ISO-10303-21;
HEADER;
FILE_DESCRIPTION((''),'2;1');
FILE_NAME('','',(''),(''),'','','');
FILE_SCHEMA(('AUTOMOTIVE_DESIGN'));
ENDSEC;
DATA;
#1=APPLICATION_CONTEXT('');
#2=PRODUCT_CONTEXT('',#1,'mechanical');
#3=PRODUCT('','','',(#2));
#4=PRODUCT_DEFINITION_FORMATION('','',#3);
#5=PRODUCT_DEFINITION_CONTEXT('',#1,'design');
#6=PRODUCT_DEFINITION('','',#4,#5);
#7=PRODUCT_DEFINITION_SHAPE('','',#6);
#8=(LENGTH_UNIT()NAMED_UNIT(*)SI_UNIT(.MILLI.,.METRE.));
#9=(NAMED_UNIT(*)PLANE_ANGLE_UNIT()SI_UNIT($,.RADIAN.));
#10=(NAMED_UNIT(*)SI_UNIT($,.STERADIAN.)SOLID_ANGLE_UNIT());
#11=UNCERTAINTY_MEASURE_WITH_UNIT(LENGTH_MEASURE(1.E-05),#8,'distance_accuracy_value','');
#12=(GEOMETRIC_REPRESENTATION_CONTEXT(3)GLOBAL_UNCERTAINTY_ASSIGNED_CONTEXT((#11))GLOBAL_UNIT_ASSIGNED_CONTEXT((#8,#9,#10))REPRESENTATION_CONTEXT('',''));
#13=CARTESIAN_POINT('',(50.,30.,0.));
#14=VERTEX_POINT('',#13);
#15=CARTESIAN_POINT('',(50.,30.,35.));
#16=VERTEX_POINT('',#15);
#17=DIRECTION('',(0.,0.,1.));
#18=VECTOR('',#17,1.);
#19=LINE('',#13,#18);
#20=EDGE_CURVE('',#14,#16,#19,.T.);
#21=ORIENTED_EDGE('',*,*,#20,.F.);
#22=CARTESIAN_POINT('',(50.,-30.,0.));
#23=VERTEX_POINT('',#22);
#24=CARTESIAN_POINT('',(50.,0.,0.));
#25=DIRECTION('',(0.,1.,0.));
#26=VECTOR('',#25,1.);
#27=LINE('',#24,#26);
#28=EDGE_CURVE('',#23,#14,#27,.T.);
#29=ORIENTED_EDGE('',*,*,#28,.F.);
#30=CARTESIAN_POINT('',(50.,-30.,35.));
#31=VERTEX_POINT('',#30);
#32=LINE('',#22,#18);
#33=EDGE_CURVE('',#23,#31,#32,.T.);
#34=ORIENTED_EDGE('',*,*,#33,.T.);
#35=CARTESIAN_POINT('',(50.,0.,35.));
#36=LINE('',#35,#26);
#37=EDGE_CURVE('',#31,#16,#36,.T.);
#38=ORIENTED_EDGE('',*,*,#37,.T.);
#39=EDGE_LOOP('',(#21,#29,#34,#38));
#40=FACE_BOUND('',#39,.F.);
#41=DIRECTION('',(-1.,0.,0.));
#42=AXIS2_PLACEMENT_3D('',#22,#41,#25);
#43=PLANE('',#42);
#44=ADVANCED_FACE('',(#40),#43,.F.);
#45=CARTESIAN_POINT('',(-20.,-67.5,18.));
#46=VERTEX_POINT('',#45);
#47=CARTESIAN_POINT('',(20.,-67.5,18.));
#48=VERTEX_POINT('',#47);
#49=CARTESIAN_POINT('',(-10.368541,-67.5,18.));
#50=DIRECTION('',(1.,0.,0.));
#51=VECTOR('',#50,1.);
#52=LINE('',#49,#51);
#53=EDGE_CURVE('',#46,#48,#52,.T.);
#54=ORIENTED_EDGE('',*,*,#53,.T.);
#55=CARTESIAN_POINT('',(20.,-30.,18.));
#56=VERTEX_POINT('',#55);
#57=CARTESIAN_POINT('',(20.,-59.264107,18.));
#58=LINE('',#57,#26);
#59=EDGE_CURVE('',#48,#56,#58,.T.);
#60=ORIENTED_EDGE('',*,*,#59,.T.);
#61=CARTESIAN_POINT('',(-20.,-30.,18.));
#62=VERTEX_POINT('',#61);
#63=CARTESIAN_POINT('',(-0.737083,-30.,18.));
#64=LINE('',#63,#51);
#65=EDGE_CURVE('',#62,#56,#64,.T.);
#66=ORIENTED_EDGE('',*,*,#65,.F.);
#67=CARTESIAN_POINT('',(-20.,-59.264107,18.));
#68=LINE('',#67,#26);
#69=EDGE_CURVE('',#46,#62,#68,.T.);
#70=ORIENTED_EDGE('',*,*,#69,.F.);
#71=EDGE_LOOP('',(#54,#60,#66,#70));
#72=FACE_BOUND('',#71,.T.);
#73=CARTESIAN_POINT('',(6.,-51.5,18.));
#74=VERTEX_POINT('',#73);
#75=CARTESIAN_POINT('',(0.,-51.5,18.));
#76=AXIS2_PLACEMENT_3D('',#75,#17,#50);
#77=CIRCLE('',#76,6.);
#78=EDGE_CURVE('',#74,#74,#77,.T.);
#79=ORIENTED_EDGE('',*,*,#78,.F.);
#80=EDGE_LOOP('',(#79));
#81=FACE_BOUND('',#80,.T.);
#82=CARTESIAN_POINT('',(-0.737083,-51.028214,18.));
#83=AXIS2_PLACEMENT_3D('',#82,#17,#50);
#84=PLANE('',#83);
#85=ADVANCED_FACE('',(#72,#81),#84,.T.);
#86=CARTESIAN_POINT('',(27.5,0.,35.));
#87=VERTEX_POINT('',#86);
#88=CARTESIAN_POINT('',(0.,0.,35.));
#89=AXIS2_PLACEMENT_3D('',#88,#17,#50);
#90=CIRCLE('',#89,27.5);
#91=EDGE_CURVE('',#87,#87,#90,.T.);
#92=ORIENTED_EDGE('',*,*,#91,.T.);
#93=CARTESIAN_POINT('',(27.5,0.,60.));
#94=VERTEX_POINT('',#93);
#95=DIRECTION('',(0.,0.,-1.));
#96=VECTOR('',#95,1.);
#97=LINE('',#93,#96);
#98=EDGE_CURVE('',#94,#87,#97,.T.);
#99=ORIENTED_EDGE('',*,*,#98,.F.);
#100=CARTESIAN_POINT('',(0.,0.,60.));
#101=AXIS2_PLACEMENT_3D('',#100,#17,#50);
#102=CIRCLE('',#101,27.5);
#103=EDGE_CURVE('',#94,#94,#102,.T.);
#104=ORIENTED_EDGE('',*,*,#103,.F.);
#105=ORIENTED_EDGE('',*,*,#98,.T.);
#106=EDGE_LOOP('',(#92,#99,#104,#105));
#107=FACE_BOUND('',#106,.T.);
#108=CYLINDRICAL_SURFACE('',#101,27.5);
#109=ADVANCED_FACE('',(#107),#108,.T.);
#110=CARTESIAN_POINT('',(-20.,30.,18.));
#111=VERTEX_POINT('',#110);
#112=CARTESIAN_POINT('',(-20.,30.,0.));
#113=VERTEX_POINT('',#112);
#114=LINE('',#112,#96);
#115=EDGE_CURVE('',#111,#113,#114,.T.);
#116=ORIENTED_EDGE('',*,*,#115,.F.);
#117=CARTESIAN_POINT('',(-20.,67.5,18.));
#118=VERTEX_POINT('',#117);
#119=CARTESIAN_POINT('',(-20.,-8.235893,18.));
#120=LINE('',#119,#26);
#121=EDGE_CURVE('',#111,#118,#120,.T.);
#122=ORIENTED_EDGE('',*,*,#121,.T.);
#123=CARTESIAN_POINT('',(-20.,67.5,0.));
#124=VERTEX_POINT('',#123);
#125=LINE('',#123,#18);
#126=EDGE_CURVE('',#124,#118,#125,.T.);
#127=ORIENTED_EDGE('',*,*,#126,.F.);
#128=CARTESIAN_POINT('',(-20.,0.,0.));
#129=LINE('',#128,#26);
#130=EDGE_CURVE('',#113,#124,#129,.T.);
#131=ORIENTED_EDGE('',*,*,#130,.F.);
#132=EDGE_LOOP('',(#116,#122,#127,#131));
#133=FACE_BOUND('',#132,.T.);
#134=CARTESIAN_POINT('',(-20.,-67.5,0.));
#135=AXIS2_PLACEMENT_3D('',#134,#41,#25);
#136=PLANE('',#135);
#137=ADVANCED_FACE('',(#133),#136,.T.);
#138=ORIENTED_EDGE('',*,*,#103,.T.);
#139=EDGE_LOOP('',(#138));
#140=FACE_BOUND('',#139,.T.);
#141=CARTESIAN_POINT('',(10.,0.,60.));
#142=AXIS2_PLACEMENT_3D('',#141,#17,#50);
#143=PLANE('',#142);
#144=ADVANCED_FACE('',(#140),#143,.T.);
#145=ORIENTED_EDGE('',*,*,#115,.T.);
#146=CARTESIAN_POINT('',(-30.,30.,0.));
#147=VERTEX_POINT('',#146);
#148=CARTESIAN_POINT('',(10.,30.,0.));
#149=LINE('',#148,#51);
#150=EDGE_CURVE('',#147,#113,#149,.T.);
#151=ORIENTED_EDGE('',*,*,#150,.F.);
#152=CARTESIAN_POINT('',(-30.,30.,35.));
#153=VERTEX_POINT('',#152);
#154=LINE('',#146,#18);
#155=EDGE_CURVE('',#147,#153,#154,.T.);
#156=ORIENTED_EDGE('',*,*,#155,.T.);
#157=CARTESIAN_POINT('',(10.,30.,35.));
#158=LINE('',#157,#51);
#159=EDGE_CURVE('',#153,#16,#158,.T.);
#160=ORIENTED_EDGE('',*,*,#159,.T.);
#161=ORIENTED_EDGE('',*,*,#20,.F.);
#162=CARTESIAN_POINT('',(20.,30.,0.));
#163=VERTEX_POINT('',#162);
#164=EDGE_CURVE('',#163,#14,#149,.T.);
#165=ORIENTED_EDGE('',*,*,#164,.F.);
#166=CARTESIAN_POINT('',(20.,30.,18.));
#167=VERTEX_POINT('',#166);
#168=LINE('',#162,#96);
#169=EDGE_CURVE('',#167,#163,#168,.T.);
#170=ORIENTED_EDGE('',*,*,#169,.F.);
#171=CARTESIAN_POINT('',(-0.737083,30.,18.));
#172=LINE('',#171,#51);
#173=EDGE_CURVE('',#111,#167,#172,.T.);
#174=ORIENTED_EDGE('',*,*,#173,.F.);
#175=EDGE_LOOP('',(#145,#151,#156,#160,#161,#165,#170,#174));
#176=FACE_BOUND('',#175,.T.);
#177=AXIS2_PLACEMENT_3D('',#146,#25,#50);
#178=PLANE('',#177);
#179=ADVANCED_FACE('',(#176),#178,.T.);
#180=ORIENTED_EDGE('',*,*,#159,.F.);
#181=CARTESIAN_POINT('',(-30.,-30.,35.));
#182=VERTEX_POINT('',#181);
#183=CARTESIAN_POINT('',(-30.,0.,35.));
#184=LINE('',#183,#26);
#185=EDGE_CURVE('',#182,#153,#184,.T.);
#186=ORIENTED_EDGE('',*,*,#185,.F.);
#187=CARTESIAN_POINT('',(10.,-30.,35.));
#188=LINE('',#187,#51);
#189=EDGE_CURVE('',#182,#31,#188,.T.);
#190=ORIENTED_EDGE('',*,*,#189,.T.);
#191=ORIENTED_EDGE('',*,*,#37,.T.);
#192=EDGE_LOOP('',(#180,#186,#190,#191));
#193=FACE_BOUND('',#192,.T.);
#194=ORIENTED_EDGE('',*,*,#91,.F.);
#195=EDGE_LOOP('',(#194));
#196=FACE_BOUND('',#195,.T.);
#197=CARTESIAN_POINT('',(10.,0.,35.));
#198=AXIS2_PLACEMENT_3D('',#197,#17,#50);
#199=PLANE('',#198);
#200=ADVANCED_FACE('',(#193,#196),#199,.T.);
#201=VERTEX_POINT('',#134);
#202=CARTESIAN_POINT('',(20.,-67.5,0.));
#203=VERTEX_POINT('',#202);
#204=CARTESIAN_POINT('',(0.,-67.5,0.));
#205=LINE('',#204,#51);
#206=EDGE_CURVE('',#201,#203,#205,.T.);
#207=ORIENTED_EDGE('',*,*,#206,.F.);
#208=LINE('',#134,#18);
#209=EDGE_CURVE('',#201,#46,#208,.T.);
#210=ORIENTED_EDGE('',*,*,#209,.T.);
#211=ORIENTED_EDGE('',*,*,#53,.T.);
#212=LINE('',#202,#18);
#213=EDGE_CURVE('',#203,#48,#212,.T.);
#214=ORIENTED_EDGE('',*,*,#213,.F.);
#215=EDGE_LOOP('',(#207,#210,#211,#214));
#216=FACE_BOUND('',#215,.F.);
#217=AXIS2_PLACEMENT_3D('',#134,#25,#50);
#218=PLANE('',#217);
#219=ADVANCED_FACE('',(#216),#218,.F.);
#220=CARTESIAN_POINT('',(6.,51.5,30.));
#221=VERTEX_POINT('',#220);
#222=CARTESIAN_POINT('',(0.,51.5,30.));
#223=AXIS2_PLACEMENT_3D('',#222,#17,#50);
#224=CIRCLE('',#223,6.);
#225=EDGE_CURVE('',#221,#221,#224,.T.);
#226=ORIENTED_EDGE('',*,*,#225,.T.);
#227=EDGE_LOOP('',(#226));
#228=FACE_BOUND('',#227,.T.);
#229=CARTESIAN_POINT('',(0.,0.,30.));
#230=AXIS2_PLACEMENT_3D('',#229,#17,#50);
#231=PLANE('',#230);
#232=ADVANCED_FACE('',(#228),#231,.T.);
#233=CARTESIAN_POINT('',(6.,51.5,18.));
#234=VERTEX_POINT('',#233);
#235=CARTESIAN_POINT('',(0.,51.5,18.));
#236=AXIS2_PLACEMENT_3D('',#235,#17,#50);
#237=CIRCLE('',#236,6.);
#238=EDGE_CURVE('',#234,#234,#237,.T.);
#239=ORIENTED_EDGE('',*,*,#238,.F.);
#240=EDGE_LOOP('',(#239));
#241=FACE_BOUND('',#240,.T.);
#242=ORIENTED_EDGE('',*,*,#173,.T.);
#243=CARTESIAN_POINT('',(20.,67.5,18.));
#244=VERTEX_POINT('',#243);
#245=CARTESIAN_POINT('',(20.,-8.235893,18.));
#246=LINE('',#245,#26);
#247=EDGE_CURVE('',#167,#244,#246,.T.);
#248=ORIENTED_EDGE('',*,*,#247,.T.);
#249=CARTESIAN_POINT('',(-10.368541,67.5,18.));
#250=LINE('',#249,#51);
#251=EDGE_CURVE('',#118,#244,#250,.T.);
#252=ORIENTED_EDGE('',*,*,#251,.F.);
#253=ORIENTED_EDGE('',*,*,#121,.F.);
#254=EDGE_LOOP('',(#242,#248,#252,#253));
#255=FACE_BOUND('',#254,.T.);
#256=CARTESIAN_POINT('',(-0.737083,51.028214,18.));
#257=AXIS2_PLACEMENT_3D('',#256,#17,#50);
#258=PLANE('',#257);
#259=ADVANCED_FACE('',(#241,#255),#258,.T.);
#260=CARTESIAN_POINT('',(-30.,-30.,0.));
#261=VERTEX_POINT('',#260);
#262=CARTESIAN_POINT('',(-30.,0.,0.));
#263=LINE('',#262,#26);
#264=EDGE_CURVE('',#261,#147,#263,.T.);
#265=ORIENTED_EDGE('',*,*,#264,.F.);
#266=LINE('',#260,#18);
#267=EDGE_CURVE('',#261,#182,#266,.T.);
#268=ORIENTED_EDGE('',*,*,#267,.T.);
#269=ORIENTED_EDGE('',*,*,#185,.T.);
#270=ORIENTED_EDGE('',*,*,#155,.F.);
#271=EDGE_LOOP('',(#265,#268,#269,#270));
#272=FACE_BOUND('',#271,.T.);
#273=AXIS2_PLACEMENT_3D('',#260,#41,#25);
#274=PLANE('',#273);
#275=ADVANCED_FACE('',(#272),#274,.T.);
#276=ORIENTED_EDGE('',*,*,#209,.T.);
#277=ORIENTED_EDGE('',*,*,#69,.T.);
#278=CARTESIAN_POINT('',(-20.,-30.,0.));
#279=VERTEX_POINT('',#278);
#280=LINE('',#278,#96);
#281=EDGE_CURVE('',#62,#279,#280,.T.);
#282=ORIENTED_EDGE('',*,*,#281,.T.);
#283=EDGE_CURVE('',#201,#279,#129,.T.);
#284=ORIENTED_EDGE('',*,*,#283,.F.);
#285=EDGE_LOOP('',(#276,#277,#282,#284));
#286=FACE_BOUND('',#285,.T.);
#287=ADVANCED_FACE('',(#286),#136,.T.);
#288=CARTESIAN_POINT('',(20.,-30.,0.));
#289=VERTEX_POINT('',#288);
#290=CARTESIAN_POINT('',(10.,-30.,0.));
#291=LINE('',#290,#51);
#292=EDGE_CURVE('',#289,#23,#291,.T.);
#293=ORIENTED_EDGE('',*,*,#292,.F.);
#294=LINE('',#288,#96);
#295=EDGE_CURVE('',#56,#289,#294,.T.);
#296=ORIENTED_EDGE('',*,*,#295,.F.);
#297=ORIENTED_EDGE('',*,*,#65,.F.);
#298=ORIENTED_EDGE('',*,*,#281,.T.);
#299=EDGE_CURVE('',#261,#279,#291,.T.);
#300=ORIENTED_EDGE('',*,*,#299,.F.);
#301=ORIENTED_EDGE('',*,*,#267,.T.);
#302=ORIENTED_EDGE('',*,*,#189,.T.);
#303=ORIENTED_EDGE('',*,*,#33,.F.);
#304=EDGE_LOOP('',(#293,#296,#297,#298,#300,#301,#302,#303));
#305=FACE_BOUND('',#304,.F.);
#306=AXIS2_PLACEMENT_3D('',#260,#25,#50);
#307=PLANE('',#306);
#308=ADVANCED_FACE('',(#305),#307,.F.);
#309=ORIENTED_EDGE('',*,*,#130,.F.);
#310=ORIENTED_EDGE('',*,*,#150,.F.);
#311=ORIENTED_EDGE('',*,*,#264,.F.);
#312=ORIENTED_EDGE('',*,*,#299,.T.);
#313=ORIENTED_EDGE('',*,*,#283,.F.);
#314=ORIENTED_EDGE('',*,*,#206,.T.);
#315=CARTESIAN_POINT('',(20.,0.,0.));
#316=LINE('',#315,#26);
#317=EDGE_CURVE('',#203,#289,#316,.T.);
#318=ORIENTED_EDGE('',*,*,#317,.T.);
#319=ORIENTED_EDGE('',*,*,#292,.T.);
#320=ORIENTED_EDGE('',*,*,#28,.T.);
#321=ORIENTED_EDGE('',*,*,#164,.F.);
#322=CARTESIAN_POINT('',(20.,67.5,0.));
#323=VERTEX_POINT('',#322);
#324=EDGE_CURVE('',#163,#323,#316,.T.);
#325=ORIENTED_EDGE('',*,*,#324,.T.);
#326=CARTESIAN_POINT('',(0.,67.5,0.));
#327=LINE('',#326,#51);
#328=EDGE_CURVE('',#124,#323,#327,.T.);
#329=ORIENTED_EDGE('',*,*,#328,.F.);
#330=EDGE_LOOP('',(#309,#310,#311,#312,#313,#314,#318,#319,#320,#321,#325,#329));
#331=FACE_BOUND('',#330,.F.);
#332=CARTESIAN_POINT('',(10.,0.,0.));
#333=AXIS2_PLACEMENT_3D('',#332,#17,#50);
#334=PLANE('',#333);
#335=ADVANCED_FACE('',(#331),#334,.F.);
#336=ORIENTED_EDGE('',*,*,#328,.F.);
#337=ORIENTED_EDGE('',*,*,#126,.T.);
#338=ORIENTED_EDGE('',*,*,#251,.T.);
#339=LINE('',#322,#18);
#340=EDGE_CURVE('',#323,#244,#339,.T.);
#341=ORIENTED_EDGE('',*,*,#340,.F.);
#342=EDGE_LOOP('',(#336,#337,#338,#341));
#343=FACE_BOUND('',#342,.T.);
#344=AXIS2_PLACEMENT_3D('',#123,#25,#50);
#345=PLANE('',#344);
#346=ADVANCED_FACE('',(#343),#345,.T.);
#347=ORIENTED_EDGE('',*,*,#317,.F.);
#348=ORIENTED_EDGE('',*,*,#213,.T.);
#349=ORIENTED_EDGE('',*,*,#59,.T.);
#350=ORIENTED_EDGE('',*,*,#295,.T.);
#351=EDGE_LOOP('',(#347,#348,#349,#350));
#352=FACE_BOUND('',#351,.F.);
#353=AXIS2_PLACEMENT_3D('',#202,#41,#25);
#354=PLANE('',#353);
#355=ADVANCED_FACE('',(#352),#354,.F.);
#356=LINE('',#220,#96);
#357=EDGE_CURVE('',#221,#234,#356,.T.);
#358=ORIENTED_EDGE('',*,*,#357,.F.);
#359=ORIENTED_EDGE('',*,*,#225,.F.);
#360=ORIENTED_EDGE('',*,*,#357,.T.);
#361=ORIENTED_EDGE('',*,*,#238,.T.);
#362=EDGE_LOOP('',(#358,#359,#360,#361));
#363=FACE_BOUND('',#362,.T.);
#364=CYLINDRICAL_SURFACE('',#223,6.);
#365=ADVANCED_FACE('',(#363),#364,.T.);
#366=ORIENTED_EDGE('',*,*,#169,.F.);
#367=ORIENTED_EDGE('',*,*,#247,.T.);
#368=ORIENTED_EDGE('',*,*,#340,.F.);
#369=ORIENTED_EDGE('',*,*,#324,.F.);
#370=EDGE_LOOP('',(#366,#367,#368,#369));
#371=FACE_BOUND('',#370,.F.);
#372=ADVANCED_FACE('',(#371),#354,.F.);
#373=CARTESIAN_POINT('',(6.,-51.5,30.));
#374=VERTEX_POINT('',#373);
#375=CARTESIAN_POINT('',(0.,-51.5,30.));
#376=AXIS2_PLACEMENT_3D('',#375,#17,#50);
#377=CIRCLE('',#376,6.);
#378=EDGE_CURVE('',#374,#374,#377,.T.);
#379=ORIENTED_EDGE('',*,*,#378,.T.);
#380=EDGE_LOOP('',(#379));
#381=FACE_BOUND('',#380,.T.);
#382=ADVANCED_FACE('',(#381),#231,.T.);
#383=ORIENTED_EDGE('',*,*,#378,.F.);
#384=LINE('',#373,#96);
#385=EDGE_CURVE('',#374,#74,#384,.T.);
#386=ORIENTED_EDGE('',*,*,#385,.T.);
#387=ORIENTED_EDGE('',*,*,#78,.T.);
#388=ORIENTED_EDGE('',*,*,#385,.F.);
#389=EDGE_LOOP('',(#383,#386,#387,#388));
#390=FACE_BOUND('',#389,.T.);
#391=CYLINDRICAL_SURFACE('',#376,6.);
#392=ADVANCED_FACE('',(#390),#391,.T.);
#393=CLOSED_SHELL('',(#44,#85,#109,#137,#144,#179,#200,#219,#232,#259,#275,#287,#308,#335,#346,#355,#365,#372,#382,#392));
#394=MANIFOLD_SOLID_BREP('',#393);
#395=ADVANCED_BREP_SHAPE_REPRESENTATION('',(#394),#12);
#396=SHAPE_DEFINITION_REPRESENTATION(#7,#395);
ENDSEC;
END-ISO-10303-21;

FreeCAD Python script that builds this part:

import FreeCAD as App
import Part
import Sketcher

V = App.Vector
Q = App.Units.Quantity

doc = App.newDocument("Part")
body = doc.addObject("PartDesign::Body", "Body")

# Sketch on XY plane
sketch1 = doc.addObject("Sketcher::SketchObject", "Sketch")
body.addObject(sketch1)
sketch1.AttachmentSupport = (doc.XY_Plane, [""])
sketch1.MapMode = "FlatFace"
sketch1.addGeometry([
    Part.LineSegment(V(-20, 67.5, 0), V(-20, -67.5, 0)),
    Part.LineSegment(V(-20, -67.5, 0), V(20, -67.5, 0)),
    Part.LineSegment(V(20, -67.5, 0), V(20, 67.5, 0)),
    Part.LineSegment(V(20, 67.5, 0), V(-20, 67.5, 0)),
], False)
sketch1.addConstraint([
    Sketcher.Constraint("Coincident", 0, 2, 1, 1),
    Sketcher.Constraint("Coincident", 1, 2, 2, 1),
    Sketcher.Constraint("Coincident", 2, 2, 3, 1),
    Sketcher.Constraint("Coincident", 3, 2, 0, 1),
    Sketcher.Constraint("Vertical", 0),
    Sketcher.Constraint("Horizontal", 1),
    Sketcher.Constraint("Vertical", 2),
    Sketcher.Constraint("Horizontal", 3),
    Sketcher.Constraint("Symmetric", 0, 2, 2, 2, -1, 1),
    Sketcher.Constraint("DistanceX", 1, 1, 1, 2, Q("40 mm")),
    Sketcher.Constraint("DistanceY", 0, 2, 0, 1, Q("135 mm")),
])
pad1 = doc.addObject("PartDesign::Pad", "Pad")
body.addObject(pad1)
pad1.Profile = sketch1
pad1.Length = 30

# Sketch on XY plane
sketch2 = doc.addObject("Sketcher::SketchObject", "Sketch001")
body.addObject(sketch2)
sketch2.AttachmentSupport = (doc.XY_Plane, [""])
sketch2.MapMode = "FlatFace"
sketch2.addGeometry([
    Part.LineSegment(V(-30, 30, 0), V(-30, -30, 0)),
    Part.LineSegment(V(-30, -30, 0), V(50, -30, 0)),
    Part.LineSegment(V(50, -30, 0), V(50, 30, 0)),
    Part.LineSegment(V(50, 30, 0), V(-30, 30, 0)),
], False)
sketch2.addConstraint([
    Sketcher.Constraint("Coincident", 0, 2, 1, 1),
    Sketcher.Constraint("Coincident", 1, 2, 2, 1),
    Sketcher.Constraint("Coincident", 2, 2, 3, 1),
    Sketcher.Constraint("Coincident", 3, 2, 0, 1),
    Sketcher.Constraint("Vertical", 0),
    Sketcher.Constraint("Horizontal", 1),
    Sketcher.Constraint("Vertical", 2),
    Sketcher.Constraint("Horizontal", 3),
    Sketcher.Constraint("DistanceX", 1, 1, 1, 2, Q("80 mm")),
    Sketcher.Constraint("DistanceY", 0, 2, 0, 1, Q("60 mm")),
    Sketcher.Constraint("DistanceX", 0, 2, -1, 1, Q("30 mm")),
    Sketcher.Constraint("DistanceY", 0, 2, -1, 1, Q("30 mm")),
])
pad2 = doc.addObject("PartDesign::Pad", "Pad001")
body.addObject(pad2)
pad2.Profile = sketch2
pad2.Length = 60

# Sketch on XY plane
sketch3 = doc.addObject("Sketcher::SketchObject", "Sketch002")
body.addObject(sketch3)
sketch3.AttachmentSupport = (doc.XY_Plane, [""])
sketch3.MapMode = "FlatFace"
sketch3.AttachmentOffset = App.Placement(V(0, 0, 60), App.Rotation())
sketch3.addGeometry([
    Part.LineSegment(V(-30, 30, 0), V(-30, -30, 0)),  # 0
    Part.LineSegment(V(-30, -30, 0), V(50, -30, 0)),  # 1
    Part.LineSegment(V(50, -30, 0), V(50, 30, 0)),  # 2
    Part.LineSegment(V(50, 30, 0), V(-30, 30, 0)),  # 3
    Part.Circle(V(0, 0, 0), V(0, 0, 1), 27.5),  # 4
], False)
sketch3.addConstraint([
    Sketcher.Constraint("Coincident", 0, 2, 1, 1),
    Sketcher.Constraint("Coincident", 1, 2, 2, 1),
    Sketcher.Constraint("Coincident", 2, 2, 3, 1),
    Sketcher.Constraint("Coincident", 3, 2, 0, 1),
    Sketcher.Constraint("Vertical", 0),
    Sketcher.Constraint("Horizontal", 1),
    Sketcher.Constraint("Vertical", 2),
    Sketcher.Constraint("Horizontal", 3),
    Sketcher.Constraint("Coincident", 4, 3, -1, 1),
    Sketcher.Constraint("Diameter", 4, Q("55 mm")),
    Sketcher.Constraint("DistanceX", 1, 1, 1, 2, Q("80 mm")),
    Sketcher.Constraint("DistanceY", 0, 2, 0, 1, Q("60 mm")),
    Sketcher.Constraint("DistanceX", 0, 2, -1, 1, Q("30 mm")),
    Sketcher.Constraint("DistanceY", 0, 2, -1, 1, Q("30 mm")),
])
pocket1 = doc.addObject("PartDesign::Pocket", "Pocket")
body.addObject(pocket1)
pocket1.Profile = sketch3
pocket1.Length = 25

# Sketch on XY plane
sketch4 = doc.addObject("Sketcher::SketchObject", "Sketch003")
body.addObject(sketch4)
sketch4.AttachmentSupport = (doc.XY_Plane, [""])
sketch4.MapMode = "FlatFace"
sketch4.AttachmentOffset = App.Placement(V(0, 0, 30), App.Rotation())
sketch4.addGeometry([
    Part.LineSegment(V(-25.756688, 72.056428, 0), V(-25.756688, 30, 0)),  # 0
    Part.LineSegment(V(-25.756688, 30, 0), V(24.282522, 30, 0)),  # 1
    Part.LineSegment(V(24.282522, 30, 0), V(24.282522, 72.056428, 0)),  # 2
    Part.LineSegment(V(24.282522, 72.056428, 0), V(-25.756688, 72.056428, 0)),  # 3
    Part.Circle(V(0, 51.5, 0), V(0, 0, 1), 6),  # 4
    Part.LineSegment(V(-25.756688, -30, 0), V(-25.756688, -72.056428, 0)),  # 5
    Part.LineSegment(V(-25.756688, -72.056428, 0), V(24.282522, -72.056428, 0)),  # 6
    Part.LineSegment(V(24.282522, -72.056428, 0), V(24.282522, -30, 0)),  # 7
    Part.LineSegment(V(24.282522, -30, 0), V(-25.756688, -30, 0)),  # 8
    Part.Circle(V(0, -51.5, 0), V(0, 0, 1), 6),  # 9
], False)
sketch4.addConstraint([
    Sketcher.Constraint("Coincident", 0, 2, 1, 1),
    Sketcher.Constraint("Coincident", 1, 2, 2, 1),
    Sketcher.Constraint("Coincident", 2, 2, 3, 1),
    Sketcher.Constraint("Coincident", 3, 2, 0, 1),
    Sketcher.Constraint("Coincident", 5, 2, 6, 1),
    Sketcher.Constraint("Coincident", 6, 2, 7, 1),
    Sketcher.Constraint("Coincident", 7, 2, 8, 1),
    Sketcher.Constraint("Coincident", 8, 2, 5, 1),
    Sketcher.Constraint("Vertical", 0),
    Sketcher.Constraint("Horizontal", 1),
    Sketcher.Constraint("Vertical", 2),
    Sketcher.Constraint("Horizontal", 3),
    Sketcher.Constraint("Vertical", 5),
    Sketcher.Constraint("Horizontal", 6),
    Sketcher.Constraint("Vertical", 7),
    Sketcher.Constraint("Horizontal", 8),
    Sketcher.Constraint("Equal", 4, 9),
    Sketcher.Constraint("Symmetric", 4, 3, 9, 3, -1, 1),
    Sketcher.Constraint("Symmetric", 3, 2, 5, 2, -1),
    Sketcher.Constraint("Symmetric", 1, 2, 7, 2, -1),
    Sketcher.Constraint("PointOnObject", 4, 3, -2),
    Sketcher.Constraint("Diameter", 4, Q("12 mm")),
    Sketcher.Constraint("DistanceY", -1, 1, 0, 2, Q("30 mm")),
    Sketcher.Constraint("DistanceY", 9, 3, 4, 3, Q("103 mm")),
    Sketcher.Constraint("DistanceX", 1, 1, 1, 2, Q("50.039211 mm")),
    Sketcher.Constraint("DistanceY", 0, 2, 0, 1, Q("42.056428 mm")),
    Sketcher.Constraint("DistanceX", 0, 2, -1, 1, Q("25.756688 mm")),
])
pocket2 = doc.addObject("PartDesign::Pocket", "Pocket001")
body.addObject(pocket2)
pocket2.Profile = sketch4
pocket2.Length = 12

doc.recompute()
